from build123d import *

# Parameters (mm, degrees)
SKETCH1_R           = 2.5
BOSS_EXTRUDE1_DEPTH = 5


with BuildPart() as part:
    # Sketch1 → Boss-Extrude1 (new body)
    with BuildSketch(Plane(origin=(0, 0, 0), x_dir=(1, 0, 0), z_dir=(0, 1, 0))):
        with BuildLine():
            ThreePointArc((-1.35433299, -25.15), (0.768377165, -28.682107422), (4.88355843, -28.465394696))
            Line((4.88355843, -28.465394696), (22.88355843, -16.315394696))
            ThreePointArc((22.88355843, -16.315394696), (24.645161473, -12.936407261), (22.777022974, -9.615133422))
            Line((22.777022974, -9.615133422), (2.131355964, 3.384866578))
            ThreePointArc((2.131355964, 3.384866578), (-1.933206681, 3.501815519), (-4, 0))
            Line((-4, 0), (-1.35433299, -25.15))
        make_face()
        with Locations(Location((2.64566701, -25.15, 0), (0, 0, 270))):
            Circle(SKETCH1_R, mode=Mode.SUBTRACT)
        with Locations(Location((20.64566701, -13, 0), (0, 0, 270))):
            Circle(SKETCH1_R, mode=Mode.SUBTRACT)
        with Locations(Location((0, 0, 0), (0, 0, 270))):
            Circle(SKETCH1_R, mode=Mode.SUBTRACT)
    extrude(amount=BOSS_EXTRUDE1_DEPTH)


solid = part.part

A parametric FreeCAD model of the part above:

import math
import FreeCAD as App
import Part
import Sketcher

doc = App.newDocument("Part")
params = doc.addObject("Spreadsheet::Sheet", "Params")
for row, (alias, value) in enumerate([
    ("sketch1_diameter", "5 mm"),
    ("sketch1_radius", "4 mm"),
    ("pad1_length", "5 mm"),
], start=1):
    params.set(f"A{row}", alias)
    params.set(f"B{row}", "=" + value)
    params.setAlias(f"B{row}", alias)

body = doc.addObject("PartDesign::Body", "Body")

sketch1 = body.newObject("Sketcher::SketchObject", "Sketch")
sketch1.AttachmentSupport = (doc.getObject("XZ_Plane"), [""])
sketch1.MapMode = "FlatFace"
sketch1.addGeometry([
    Part.ArcOfCircle(Part.Circle(App.Vector(2.6, 25.2, 0), App.Vector(0, 0, 1), 4), math.radians(56), math.radians(180)),
    Part.LineSegment(App.Vector(4.9, 28.5, 0), App.Vector(22.9, 16.3, 0)),
    Part.ArcOfCircle(Part.Circle(App.Vector(20.6, 13, 0), App.Vector(0, 0, 1), 4), math.radians(-58), math.radians(56)),
    Part.LineSegment(App.Vector(22.8, 9.6, 0), App.Vector(2.1, -3.4, 0)),
    Part.ArcOfCircle(Part.Circle(App.Vector(0, 0, 0), App.Vector(0, 0, 1), 4), math.radians(180), math.radians(302)),
    Part.LineSegment(App.Vector(-4, 0, 0), App.Vector(-1.4, 25.1, 0)),
    Part.Circle(App.Vector(2.6, 25.1, 0), App.Vector(0, 0, 1), 2.5),
    Part.Circle(App.Vector(20.6, 13, 0), App.Vector(0, 0, 1), 2.5),
    Part.Circle(App.Vector(0, 0, 0), App.Vector(0, 0, 1), 2.5),
], False)
sketch1.addConstraint([
    Sketcher.Constraint("Tangent", 0, 1, 1, 1),
    Sketcher.Constraint("Tangent", 1, 2, 2, 2),
    Sketcher.Constraint("Tangent", 2, 1, 3, 1),
    Sketcher.Constraint("Tangent", 3, 2, 4, 2),
    Sketcher.Constraint("Coincident", 4, 1, 5, 1),
    Sketcher.Constraint("Coincident", 5, 2, 0, 2),
    Sketcher.Constraint("Coincident", 4, 3, -1, 1),
    Sketcher.Constraint("Coincident", 8, 3, -1, 1),
    Sketcher.Constraint("Coincident", 6, 3, 0, 3),
    Sketcher.Constraint("Coincident", 7, 3, 2, 3),
    Sketcher.Constraint("Equal", 0, 2),
    Sketcher.Constraint("Equal", 2, 4),
    Sketcher.Constraint("Equal", 6, 7),
    Sketcher.Constraint("Equal", 7, 8),
    Sketcher.Constraint("PointOnObject", 4, 1, -1),
    Sketcher.Constraint("Horizontal", 6, 3, 5, 2),
    Sketcher.Constraint("Diameter", 6, 5.0),
    Sketcher.Constraint("Radius", 0, 4.0),
    Sketcher.Constraint("DistanceY", -1, 1, 2, 3, 13.0),
    Sketcher.Constraint("DistanceX", 0, 3, 2, 3, 18.0),
    Sketcher.Constraint("DistanceY", -1, 1, 0, 3, 25.15),
    Sketcher.Constraint("DistanceX", -1, 1, 0, 1, 4.883558),
])
sketch1.setExpression("Constraints[16]", "Params.sketch1_diameter")
sketch1.setExpression("Constraints[17]", "Params.sketch1_radius")
pad1 = body.newObject("PartDesign::Pad", "Pad")
pad1.Profile = sketch1
pad1.setExpression("Length", "Params.pad1_length")
pad1.Reversed = True

doc.recompute()
